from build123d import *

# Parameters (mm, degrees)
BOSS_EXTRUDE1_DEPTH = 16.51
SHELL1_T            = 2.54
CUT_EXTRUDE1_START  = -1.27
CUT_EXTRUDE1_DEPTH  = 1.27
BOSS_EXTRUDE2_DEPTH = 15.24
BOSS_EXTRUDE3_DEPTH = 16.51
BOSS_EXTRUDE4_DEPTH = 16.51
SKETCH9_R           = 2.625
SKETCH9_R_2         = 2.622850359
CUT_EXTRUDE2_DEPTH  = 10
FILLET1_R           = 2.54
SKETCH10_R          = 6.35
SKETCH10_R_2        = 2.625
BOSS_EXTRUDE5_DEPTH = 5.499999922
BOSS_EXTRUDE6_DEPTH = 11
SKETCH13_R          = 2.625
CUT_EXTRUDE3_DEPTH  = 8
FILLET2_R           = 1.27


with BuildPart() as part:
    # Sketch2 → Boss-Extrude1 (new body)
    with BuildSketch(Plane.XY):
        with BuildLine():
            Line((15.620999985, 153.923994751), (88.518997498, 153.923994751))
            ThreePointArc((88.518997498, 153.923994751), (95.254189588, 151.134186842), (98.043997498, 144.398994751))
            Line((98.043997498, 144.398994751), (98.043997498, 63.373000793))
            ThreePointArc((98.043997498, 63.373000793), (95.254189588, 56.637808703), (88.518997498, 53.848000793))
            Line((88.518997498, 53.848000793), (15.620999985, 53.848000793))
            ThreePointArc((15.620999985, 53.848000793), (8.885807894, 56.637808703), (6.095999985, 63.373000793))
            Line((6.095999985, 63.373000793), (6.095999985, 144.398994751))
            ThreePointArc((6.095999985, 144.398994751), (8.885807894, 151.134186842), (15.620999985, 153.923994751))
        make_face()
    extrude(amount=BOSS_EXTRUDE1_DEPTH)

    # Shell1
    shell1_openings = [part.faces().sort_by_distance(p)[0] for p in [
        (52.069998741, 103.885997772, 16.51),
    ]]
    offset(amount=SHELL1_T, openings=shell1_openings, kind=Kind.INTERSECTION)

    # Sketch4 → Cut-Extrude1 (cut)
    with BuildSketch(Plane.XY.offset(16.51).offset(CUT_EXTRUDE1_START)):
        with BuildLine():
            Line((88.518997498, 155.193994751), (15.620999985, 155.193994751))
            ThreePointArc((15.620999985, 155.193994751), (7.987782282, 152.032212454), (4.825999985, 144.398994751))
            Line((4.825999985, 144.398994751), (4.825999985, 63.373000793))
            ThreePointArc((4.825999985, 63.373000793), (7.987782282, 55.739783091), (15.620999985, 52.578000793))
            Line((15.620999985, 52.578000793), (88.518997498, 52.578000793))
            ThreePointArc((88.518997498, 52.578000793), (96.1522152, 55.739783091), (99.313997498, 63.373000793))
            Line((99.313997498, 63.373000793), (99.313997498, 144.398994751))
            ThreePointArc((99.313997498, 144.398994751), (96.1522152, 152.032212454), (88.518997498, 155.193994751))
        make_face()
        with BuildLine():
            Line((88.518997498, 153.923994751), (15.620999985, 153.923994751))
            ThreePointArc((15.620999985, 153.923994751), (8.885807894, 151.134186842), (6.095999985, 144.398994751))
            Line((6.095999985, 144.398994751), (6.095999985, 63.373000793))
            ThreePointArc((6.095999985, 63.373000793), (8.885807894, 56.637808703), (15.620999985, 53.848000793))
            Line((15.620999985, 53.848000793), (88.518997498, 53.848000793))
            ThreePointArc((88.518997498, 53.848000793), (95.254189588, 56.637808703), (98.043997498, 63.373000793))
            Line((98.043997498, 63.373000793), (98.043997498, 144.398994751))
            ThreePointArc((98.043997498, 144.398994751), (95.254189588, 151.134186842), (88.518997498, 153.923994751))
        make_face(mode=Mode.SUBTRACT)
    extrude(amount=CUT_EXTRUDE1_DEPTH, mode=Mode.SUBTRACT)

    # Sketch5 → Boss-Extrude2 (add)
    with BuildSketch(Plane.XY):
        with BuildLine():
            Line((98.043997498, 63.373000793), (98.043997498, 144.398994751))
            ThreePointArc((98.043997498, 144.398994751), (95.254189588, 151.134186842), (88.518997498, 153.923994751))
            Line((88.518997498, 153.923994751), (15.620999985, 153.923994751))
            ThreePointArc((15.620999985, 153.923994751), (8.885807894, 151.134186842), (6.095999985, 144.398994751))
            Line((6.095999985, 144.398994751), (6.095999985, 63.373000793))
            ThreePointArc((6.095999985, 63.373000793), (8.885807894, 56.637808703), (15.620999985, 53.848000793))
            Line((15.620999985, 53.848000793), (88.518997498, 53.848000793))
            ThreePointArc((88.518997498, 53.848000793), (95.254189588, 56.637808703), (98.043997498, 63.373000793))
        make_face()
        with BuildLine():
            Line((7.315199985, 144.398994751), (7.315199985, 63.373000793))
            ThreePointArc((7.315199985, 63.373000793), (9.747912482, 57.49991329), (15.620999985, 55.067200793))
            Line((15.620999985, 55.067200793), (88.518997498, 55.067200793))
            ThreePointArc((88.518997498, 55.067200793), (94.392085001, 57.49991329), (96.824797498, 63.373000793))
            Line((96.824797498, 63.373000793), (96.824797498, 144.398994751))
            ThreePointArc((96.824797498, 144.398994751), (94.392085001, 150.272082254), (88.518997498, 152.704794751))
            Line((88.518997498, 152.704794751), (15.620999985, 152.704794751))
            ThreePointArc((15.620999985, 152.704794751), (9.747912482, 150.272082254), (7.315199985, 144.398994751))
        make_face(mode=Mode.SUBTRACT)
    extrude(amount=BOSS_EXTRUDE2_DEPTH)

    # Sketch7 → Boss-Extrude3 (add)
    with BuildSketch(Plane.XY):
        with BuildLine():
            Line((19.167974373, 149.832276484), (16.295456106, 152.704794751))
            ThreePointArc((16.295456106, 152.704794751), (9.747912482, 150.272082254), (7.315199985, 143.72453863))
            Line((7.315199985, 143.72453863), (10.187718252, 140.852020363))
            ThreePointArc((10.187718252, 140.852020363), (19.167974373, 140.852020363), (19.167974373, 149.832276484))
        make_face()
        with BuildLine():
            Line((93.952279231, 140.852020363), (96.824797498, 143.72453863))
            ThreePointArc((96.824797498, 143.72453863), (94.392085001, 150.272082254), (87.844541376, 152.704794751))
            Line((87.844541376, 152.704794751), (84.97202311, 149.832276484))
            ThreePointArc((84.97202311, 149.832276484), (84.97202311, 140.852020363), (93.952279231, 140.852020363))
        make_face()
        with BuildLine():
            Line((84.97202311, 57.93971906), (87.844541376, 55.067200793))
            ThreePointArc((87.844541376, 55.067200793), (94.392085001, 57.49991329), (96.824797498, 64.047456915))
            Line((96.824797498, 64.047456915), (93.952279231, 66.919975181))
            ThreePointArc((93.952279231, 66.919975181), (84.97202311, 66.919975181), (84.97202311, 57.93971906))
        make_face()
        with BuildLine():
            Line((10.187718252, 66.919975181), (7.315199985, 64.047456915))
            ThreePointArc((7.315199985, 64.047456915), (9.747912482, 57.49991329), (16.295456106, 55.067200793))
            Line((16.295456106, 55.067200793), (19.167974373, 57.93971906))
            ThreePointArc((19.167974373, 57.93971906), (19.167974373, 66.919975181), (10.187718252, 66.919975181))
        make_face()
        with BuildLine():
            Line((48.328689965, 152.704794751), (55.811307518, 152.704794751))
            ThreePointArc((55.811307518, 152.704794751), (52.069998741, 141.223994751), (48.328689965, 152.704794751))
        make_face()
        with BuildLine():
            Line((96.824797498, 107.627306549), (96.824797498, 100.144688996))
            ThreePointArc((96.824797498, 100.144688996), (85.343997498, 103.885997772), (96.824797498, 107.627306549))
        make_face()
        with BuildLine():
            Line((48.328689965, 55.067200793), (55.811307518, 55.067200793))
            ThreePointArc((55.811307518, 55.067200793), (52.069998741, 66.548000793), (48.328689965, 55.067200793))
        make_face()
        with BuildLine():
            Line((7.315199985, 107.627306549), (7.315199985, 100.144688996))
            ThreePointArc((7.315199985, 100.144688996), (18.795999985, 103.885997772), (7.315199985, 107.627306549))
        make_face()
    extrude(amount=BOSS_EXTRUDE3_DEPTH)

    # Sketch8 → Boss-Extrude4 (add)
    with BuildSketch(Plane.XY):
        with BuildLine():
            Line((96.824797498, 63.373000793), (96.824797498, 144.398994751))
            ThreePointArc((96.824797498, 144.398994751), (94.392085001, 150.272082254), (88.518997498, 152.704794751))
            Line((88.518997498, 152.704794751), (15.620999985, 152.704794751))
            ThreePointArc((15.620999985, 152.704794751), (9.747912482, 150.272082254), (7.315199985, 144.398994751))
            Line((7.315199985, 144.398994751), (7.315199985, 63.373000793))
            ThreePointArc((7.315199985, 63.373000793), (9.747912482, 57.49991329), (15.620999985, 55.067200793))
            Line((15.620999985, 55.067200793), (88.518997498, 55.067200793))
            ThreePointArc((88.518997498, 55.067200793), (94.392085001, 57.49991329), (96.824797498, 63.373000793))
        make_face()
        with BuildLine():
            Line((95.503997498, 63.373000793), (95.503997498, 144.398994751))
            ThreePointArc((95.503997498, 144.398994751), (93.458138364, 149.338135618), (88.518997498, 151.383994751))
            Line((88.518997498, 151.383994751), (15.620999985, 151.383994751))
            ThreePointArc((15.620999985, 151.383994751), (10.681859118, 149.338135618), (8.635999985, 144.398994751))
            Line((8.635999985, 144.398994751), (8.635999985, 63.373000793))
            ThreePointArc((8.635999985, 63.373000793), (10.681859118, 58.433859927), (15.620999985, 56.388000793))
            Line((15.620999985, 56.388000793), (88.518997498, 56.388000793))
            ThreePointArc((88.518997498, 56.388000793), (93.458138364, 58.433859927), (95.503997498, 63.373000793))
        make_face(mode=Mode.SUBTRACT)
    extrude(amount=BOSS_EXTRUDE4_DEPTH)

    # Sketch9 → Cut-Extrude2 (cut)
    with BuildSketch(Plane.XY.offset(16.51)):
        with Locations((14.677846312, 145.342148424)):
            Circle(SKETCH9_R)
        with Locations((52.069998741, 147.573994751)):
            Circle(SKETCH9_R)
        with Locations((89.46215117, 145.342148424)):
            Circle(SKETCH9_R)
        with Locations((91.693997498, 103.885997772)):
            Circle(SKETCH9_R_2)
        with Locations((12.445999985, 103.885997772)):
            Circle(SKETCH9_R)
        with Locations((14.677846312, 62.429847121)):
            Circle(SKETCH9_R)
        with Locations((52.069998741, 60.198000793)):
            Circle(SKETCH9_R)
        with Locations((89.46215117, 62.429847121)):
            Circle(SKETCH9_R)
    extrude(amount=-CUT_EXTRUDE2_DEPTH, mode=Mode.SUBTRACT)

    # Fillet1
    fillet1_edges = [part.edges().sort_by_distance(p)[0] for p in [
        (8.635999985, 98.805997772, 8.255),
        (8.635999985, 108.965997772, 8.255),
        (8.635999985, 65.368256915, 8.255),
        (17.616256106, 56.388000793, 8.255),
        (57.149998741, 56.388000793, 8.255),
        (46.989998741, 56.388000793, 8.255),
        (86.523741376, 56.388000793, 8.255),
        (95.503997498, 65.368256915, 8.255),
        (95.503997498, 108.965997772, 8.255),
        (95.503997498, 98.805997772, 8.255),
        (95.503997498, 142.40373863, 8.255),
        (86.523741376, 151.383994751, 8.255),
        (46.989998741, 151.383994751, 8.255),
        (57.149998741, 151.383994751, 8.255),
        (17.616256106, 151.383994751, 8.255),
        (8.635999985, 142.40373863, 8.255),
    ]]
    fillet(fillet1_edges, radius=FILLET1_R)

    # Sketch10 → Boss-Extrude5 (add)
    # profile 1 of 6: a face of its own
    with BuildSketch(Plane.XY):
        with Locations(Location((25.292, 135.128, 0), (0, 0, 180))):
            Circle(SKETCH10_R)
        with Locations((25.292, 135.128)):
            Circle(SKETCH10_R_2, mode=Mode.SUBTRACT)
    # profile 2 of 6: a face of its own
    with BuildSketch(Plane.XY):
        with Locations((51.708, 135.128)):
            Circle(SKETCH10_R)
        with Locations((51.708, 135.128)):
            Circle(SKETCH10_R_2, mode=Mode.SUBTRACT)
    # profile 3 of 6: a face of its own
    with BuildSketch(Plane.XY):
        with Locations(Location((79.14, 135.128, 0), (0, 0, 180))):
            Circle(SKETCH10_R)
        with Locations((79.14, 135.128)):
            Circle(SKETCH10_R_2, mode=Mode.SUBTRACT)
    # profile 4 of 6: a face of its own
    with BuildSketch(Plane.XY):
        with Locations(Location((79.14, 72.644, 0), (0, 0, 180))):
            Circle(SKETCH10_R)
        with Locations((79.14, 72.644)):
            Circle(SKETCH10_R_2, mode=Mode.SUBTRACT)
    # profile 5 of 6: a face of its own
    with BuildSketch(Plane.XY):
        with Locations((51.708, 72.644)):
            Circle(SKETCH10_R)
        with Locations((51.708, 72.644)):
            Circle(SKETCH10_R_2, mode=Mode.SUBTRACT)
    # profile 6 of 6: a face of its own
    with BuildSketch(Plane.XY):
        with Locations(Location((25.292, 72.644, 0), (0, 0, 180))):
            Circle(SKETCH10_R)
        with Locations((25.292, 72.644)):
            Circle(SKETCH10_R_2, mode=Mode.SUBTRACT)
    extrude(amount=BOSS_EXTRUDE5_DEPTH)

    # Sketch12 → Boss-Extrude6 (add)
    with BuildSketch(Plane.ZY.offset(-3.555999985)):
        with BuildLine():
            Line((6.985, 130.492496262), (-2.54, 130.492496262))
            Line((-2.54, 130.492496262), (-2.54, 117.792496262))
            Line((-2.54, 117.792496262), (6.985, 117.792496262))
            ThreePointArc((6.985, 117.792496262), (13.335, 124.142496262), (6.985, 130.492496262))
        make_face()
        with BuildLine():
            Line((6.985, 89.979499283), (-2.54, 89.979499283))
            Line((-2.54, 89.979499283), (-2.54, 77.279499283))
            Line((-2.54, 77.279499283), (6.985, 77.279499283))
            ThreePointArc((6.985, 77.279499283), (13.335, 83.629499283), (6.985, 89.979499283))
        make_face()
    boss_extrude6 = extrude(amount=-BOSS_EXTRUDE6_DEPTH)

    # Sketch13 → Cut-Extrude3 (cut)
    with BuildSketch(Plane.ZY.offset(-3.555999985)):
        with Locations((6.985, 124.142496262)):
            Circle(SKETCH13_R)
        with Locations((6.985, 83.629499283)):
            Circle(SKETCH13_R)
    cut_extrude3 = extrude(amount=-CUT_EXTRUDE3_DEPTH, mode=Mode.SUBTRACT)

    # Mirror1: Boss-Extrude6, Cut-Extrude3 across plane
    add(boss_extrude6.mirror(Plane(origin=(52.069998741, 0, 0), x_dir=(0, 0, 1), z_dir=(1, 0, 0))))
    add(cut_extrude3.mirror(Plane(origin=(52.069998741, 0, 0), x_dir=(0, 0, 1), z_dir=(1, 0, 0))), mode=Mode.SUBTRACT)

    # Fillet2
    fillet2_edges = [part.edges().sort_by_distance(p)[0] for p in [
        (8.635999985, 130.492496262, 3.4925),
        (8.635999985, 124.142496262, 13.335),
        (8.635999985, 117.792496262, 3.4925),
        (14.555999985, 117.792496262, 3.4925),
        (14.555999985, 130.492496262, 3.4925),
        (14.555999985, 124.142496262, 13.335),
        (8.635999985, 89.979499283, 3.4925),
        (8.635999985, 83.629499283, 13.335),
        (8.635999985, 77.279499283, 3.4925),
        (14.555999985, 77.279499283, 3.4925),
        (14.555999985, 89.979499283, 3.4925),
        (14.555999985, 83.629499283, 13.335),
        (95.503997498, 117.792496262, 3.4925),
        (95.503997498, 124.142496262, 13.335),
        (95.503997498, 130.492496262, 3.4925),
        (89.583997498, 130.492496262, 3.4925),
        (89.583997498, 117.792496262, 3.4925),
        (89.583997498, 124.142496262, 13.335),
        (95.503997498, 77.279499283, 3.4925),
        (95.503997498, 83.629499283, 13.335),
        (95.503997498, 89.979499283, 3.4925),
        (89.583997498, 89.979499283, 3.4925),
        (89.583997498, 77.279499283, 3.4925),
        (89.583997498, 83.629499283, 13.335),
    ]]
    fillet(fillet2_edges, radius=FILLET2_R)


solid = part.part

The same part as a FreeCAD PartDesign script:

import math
import FreeCAD as App
import Part
import Sketcher
Q = App.Units.Quantity


def edges_at(feature, points):
    """Names of the edges that pass closest to the given points."""
    edges = feature.Shape.Edges
    near = lambda p: min(range(len(edges)), key=lambda i: edges[i].distToShape(Part.Vertex(*p))[0])
    return sorted({f"Edge{near(p) + 1}" for p in points})


def faces_at(feature, points):
    """Names of the faces that lie closest to the given points."""
    faces = feature.Shape.Faces
    near = lambda p: min(range(len(faces)), key=lambda i: faces[i].distToShape(Part.Vertex(*p))[0])
    return sorted({f"Face{near(p) + 1}" for p in points})

doc = App.newDocument("Part")
body = doc.addObject("PartDesign::Body", "Body")

sketch1 = body.newObject("Sketcher::SketchObject", "Sketch")
sketch1.AttachmentSupport = (doc.getObject("XY_Plane"), [""])
sketch1.MapMode = "FlatFace"
sketch1.addGeometry([
    Part.LineSegment(App.Vector(89, 154, 0), App.Vector(16, 154, 0)),
    Part.ArcOfCircle(Part.Circle(App.Vector(16, 144, 0), App.Vector(0, 0, 1), 10), math.radians(90), math.radians(180)),
    Part.LineSegment(App.Vector(6, 144, 0), App.Vector(6, 63, 0)),
    Part.ArcOfCircle(Part.Circle(App.Vector(16, 63, 0), App.Vector(0, 0, 1), 10), math.radians(-180), math.radians(-90)),
    Part.LineSegment(App.Vector(16, 54, 0), App.Vector(89, 54, 0)),
    Part.ArcOfCircle(Part.Circle(App.Vector(89, 63, 0), App.Vector(0, 0, 1), 10), math.radians(-90), math.radians(0)),
    Part.LineSegment(App.Vector(98, 63, 0), App.Vector(98, 144, 0)),
    Part.ArcOfCircle(Part.Circle(App.Vector(89, 144, 0), App.Vector(0, 0, 1), 10), math.radians(0), math.radians(90)),
], False)
sketch1.addConstraint([
    Sketcher.Constraint("Tangent", 0, 2, 1, 1),
    Sketcher.Constraint("Tangent", 1, 2, 2, 1),
    Sketcher.Constraint("Tangent", 2, 2, 3, 1),
    Sketcher.Constraint("Tangent", 3, 2, 4, 1),
    Sketcher.Constraint("Tangent", 4, 2, 5, 1),
    Sketcher.Constraint("Tangent", 5, 2, 6, 1),
    Sketcher.Constraint("Tangent", 6, 2, 7, 1),
    Sketcher.Constraint("Tangent", 7, 2, 0, 1),
    Sketcher.Constraint("Horizontal", 0),
    Sketcher.Constraint("Vertical", 2),
    Sketcher.Constraint("Horizontal", 4),
    Sketcher.Constraint("Vertical", 6),
    Sketcher.Constraint("Equal", 1, 3),
    Sketcher.Constraint("Equal", 3, 5),
    Sketcher.Constraint("Equal", 5, 7),
    Sketcher.Constraint("Radius", 1, Q("0.375 in")),
    Sketcher.Constraint("DistanceX", 0, 2, 0, 1, Q("2.8699999 in")),
    Sketcher.Constraint("DistanceX", -1, 1, 1, 2, Q("0.24 in")),
    Sketcher.Constraint("DistanceY", -1, 1, 3, 2, Q("2.12 in")),
    Sketcher.Constraint("DistanceY", 2, 2, 2, 1, 81.025994),
])
pad1 = body.newObject("PartDesign::Pad", "Pad")
pad1.Profile = sketch1
pad1.Length = Q("0.65 in")
doc.recompute()

thickness = body.newObject("PartDesign::Thickness", "Thickness")
thickness.Base = (pad1, faces_at(pad1, [(52.07, 103.886, 16.51)]))
thickness.Value = Q("0.1 in")
thickness.Reversed = False
thickness.Join = "Intersection"

sketch2 = body.newObject("Sketcher::SketchObject", "Sketch001")
sketch2.AttachmentSupport = (doc.getObject("XY_Plane"), [""])
sketch2.MapMode = "FlatFace"
sketch2.AttachmentOffset = App.Placement(App.Vector(0, 0, 0.6 * 25.4), App.Rotation())
sketch2.addGeometry([
    Part.LineSegment(App.Vector(89, 155, 0), App.Vector(16, 155, 0)),
    Part.ArcOfCircle(Part.Circle(App.Vector(16, 144, 0), App.Vector(0, 0, 1), 11), math.radians(90), math.radians(180)),
    Part.LineSegment(App.Vector(5, 144, 0), App.Vector(5, 63, 0)),
    Part.ArcOfCircle(Part.Circle(App.Vector(16, 63, 0), App.Vector(0, 0, 1), 11), math.radians(-180), math.radians(-90)),
    Part.LineSegment(App.Vector(16, 53, 0), App.Vector(89, 53, 0)),
    Part.ArcOfCircle(Part.Circle(App.Vector(89, 63, 0), App.Vector(0, 0, 1), 11), math.radians(-90), math.radians(0)),
    Part.LineSegment(App.Vector(99, 63, 0), App.Vector(99, 144, 0)),
    Part.ArcOfCircle(Part.Circle(App.Vector(89, 144, 0), App.Vector(0, 0, 1), 11), math.radians(0), math.radians(90)),
    Part.LineSegment(App.Vector(16, 154, 0), App.Vector(89, 154, 0)),
    Part.ArcOfCircle(Part.Circle(App.Vector(89, 144, 0), App.Vector(0, 0, 1), 10), math.radians(0), math.radians(90)),
    Part.LineSegment(App.Vector(98, 144, 0), App.Vector(98, 63, 0)),
    Part.ArcOfCircle(Part.Circle(App.Vector(89, 63, 0), App.Vector(0, 0, 1), 10), math.radians(-90), math.radians(0)),
    Part.LineSegment(App.Vector(89, 54, 0), App.Vector(16, 54, 0)),
    Part.ArcOfCircle(Part.Circle(App.Vector(16, 63, 0), App.Vector(0, 0, 1), 10), math.radians(-180), math.radians(-90)),
    Part.LineSegment(App.Vector(6, 63, 0), App.Vector(6, 144, 0)),
    Part.ArcOfCircle(Part.Circle(App.Vector(16, 144, 0), App.Vector(0, 0, 1), 10), math.radians(90), math.radians(180)),
], False)
sketch2.addConstraint([
    Sketcher.Constraint("Tangent", 0, 2, 1, 1),
    Sketcher.Constraint("Tangent", 1, 2, 2, 1),
    Sketcher.Constraint("Tangent", 2, 2, 3, 1),
    Sketcher.Constraint("Tangent", 3, 2, 4, 1),
    Sketcher.Constraint("Tangent", 4, 2, 5, 1),
    Sketcher.Constraint("Tangent", 5, 2, 6, 1),
    Sketcher.Constraint("Tangent", 6, 2, 7, 1),
    Sketcher.Constraint("Tangent", 7, 2, 0, 1),
    Sketcher.Constraint("Tangent", 8, 2, 9, 2),
    Sketcher.Constraint("Tangent", 9, 1, 10, 1),
    Sketcher.Constraint("Tangent", 10, 2, 11, 2),
    Sketcher.Constraint("Tangent", 11, 1, 12, 1),
    Sketcher.Constraint("Tangent", 12, 2, 13, 2),
    Sketcher.Constraint("Tangent", 13, 1, 14, 1),
    Sketcher.Constraint("Tangent", 14, 2, 15, 2),
    Sketcher.Constraint("Tangent", 15, 1, 8, 1),
    Sketcher.Constraint("Horizontal", 0),
    Sketcher.Constraint("Vertical", 2),
    Sketcher.Constraint("Horizontal", 4),
    Sketcher.Constraint("Vertical", 6),
    Sketcher.Constraint("Horizontal", 8),
    Sketcher.Constraint("Vertical", 10),
    Sketcher.Constraint("Horizontal", 12),
    Sketcher.Constraint("Vertical", 14),
    Sketcher.Constraint("Coincident", 9, 3, 7, 3),
    Sketcher.Constraint("Coincident", 11, 3, 5, 3),
    Sketcher.Constraint("Coincident", 13, 3, 3, 3),
    Sketcher.Constraint("Equal", 1, 3),
    Sketcher.Constraint("Equal", 3, 5),
    Sketcher.Constraint("Equal", 5, 7),
    Sketcher.Constraint("Equal", 13, 15),
    Sketcher.Constraint("Radius", 1, Q("0.425 in")),
    Sketcher.Constraint("Radius", 9, Q("0.375 in")),
    Sketcher.Constraint("DistanceX", 0, 2, 0, 1, Q("2.8699999 in")),
    Sketcher.Constraint("DistanceX", -1, 1, 1, 2, Q("0.19 in")),
    Sketcher.Constraint("DistanceY", -1, 1, 3, 2, Q("2.07 in")),
    Sketcher.Constraint("DistanceY", 2, 2, 2, 1, 81.025994),
])
pocket1 = body.newObject("PartDesign::Pocket", "Pocket")
pocket1.Profile = sketch2
pocket1.Length = Q("0.05 in")
pocket1.Reversed = True

sketch3 = body.newObject("Sketcher::SketchObject", "Sketch002")
sketch3.AttachmentSupport = (doc.getObject("XY_Plane"), [""])
sketch3.MapMode = "FlatFace"
sketch3.addGeometry([
    Part.LineSegment(App.Vector(98, 63, 0), App.Vector(98, 144, 0)),
    Part.ArcOfCircle(Part.Circle(App.Vector(89, 144, 0), App.Vector(0, 0, 1), 10), math.radians(0), math.radians(90)),
    Part.LineSegment(App.Vector(89, 154, 0), App.Vector(16, 154, 0)),
    Part.ArcOfCircle(Part.Circle(App.Vector(16, 144, 0), App.Vector(0, 0, 1), 10), math.radians(90), math.radians(180)),
    Part.LineSegment(App.Vector(6, 144, 0), App.Vector(6, 63, 0)),
    Part.ArcOfCircle(Part.Circle(App.Vector(16, 63, 0), App.Vector(0, 0, 1), 10), math.radians(-180), math.radians(-90)),
    Part.LineSegment(App.Vector(16, 54, 0), App.Vector(89, 54, 0)),
    Part.ArcOfCircle(Part.Circle(App.Vector(89, 63, 0), App.Vector(0, 0, 1), 10), math.radians(-90), math.radians(0)),
    Part.LineSegment(App.Vector(7, 63, 0), App.Vector(7, 144, 0)),
    Part.ArcOfCircle(Part.Circle(App.Vector(16, 144, 0), App.Vector(0, 0, 1), 8), math.radians(90), math.radians(180)),
    Part.LineSegment(App.Vector(16, 153, 0), App.Vector(89, 153, 0)),
    Part.ArcOfCircle(Part.Circle(App.Vector(89, 144, 0), App.Vector(0, 0, 1), 8), math.radians(0), math.radians(90)),
    Part.LineSegment(App.Vector(97, 144, 0), App.Vector(97, 63, 0)),
    Part.ArcOfCircle(Part.Circle(App.Vector(89, 63, 0), App.Vector(0, 0, 1), 8), math.radians(-90), math.radians(0)),
    Part.LineSegment(App.Vector(89, 55, 0), App.Vector(16, 55, 0)),
    Part.ArcOfCircle(Part.Circle(App.Vector(16, 63, 0), App.Vector(0, 0, 1), 8), math.radians(-180), math.radians(-90)),
], False)
sketch3.addConstraint([
    Sketcher.Constraint("Tangent", 0, 2, 1, 1),
    Sketcher.Constraint("Tangent", 1, 2, 2, 1),
    Sketcher.Constraint("Tangent", 2, 2, 3, 1),
    Sketcher.Constraint("Tangent", 3, 2, 4, 1),
    Sketcher.Constraint("Tangent", 4, 2, 5, 1),
    Sketcher.Constraint("Tangent", 5, 2, 6, 1),
    Sketcher.Constraint("Tangent", 6, 2, 7, 1),
    Sketcher.Constraint("Tangent", 7, 2, 0, 1),
    Sketcher.Constraint("Tangent", 8, 2, 9, 2),
    Sketcher.Constraint("Tangent", 9, 1, 10, 1),
    Sketcher.Constraint("Tangent", 10, 2, 11, 2),
    Sketcher.Constraint("Tangent", 11, 1, 12, 1),
    Sketcher.Constraint("Tangent", 12, 2, 13, 2),
    Sketcher.Constraint("Tangent", 13, 1, 14, 1),
    Sketcher.Constraint("Tangent", 14, 2, 15, 2),
    Sketcher.Constraint("Tangent", 15, 1, 8, 1),
    Sketcher.Constraint("Vertical", 0),
    Sketcher.Constraint("Horizontal", 2),
    Sketcher.Constraint("Vertical", 4),
    Sketcher.Constraint("Horizontal", 6),
    Sketcher.Constraint("Vertical", 8),
    Sketcher.Constraint("Horizontal", 10),
    Sketcher.Constraint("Vertical", 12),
    Sketcher.Constraint("Horizontal", 14),
    Sketcher.Constraint("Coincident", 9, 3, 3, 3),
    Sketcher.Constraint("Coincident", 11, 3, 1, 3),
    Sketcher.Constraint("Coincident", 13, 3, 7, 3),
    Sketcher.Constraint("Equal", 1, 3),
    Sketcher.Constraint("Equal", 3, 5),
    Sketcher.Constraint("Equal", 5, 7),
    Sketcher.Constraint("Equal", 13, 15),
    Sketcher.Constraint("Radius", 1, Q("0.375 in")),
    Sketcher.Constraint("Radius", 9, Q("0.327 in")),
    Sketcher.Constraint("DistanceX", 2, 2, 2, 1, Q("2.8699999 in")),
    Sketcher.Constraint("DistanceX", -1, 1, 0, 2, Q("3.8599999 in")),
    Sketcher.Constraint("DistanceY", -1, 1, 5, 2, Q("2.12 in")),
    Sketcher.Constraint("DistanceY", 0, 1, 0, 2, 81.025994),
])
pad2 = body.newObject("PartDesign::Pad", "Pad001")
pad2.Profile = sketch3
pad2.Length = Q("0.6 in")

sketch4 = body.newObject("Sketcher::SketchObject", "Sketch003")
sketch4.AttachmentSupport = (doc.getObject("XY_Plane"), [""])
sketch4.MapMode = "FlatFace"
sketch4.addGeometry([
    Part.LineSegment(App.Vector(19.2, 149.8, 0), App.Vector(16.3, 152.7, 0)),
    Part.ArcOfCircle(Part.Circle(App.Vector(15.7, 144.3, 0), App.Vector(0, 0, 1), 8.4), math.radians(86), math.radians(184)),
    Part.LineSegment(App.Vector(7.3, 143.7, 0), App.Vector(10.2, 140.9, 0)),
    Part.ArcOfCircle(Part.Circle(App.Vector(14.7, 145.3, 0), App.Vector(0, 0, 1), 6.3), math.radians(-135), math.radians(45)),
    Part.LineSegment(App.Vector(94, 140.9, 0), App.Vector(96.8, 143.7, 0)),
    Part.ArcOfCircle(Part.Circle(App.Vector(88.5, 144.3, 0), App.Vector(0, 0, 1), 8.4), math.radians(-4), math.radians(94)),
    Part.LineSegment(App.Vector(87.8, 152.7, 0), App.Vector(85, 149.8, 0)),
    Part.ArcOfCircle(Part.Circle(App.Vector(89.5, 145.3, 0), App.Vector(0, 0, 1), 6.3), math.radians(135), math.radians(315)),
    Part.LineSegment(App.Vector(85, 57.9, 0), App.Vector(87.8, 55.1, 0)),
    Part.ArcOfCircle(Part.Circle(App.Vector(88.5, 63.4, 0), App.Vector(0, 0, 1), 8.4), math.radians(-94), math.radians(4)),
    Part.LineSegment(App.Vector(96.8, 64, 0), App.Vector(94, 66.9, 0)),
    Part.ArcOfCircle(Part.Circle(App.Vector(89.5, 62.4, 0), App.Vector(0, 0, 1), 6.3), math.radians(45), math.radians(225)),
    Part.LineSegment(App.Vector(10.2, 66.9, 0), App.Vector(7.3, 64, 0)),
    Part.ArcOfCircle(Part.Circle(App.Vector(15.7, 63.4, 0), App.Vector(0, 0, 1), 8.4), math.radians(176), math.radians(274)),
    Part.LineSegment(App.Vector(16.3, 55.1, 0), App.Vector(19.2, 57.9, 0)),
    Part.ArcOfCircle(Part.Circle(App.Vector(14.7, 62.4, 0), App.Vector(0, 0, 1), 6.3), math.radians(-45), math.radians(135)),
    Part.LineSegment(App.Vector(55.8, 152.7, 0), App.Vector(48.3, 152.7, 0)),
    Part.ArcOfCircle(Part.Circle(App.Vector(52.1, 147.6, 0), App.Vector(0, 0, 1), 6.3), math.radians(126), math.radians(414)),
    Part.LineSegment(App.Vector(96.8, 100.1, 0), App.Vector(96.8, 107.6, 0)),
    Part.ArcOfCircle(Part.Circle(App.Vector(91.7, 103.9, 0), App.Vector(0, 0, 1), 6.3), math.radians(36), math.radians(324)),
    Part.LineSegment(App.Vector(48.3, 55.1, 0), App.Vector(55.8, 55.1, 0)),
    Part.ArcOfCircle(Part.Circle(App.Vector(52.1, 60.2, 0), App.Vector(0, 0, 1), 6.3), math.radians(-54), math.radians(234)),
    Part.LineSegment(App.Vector(7.3, 107.6, 0), App.Vector(7.3, 100.1, 0)),
    Part.ArcOfCircle(Part.Circle(App.Vector(12.4, 103.9, 0), App.Vector(0, 0, 1), 6.3), math.radians(-144), math.radians(144)),
], False)
sketch4.addConstraint([
    Sketcher.Constraint("Coincident", 0, 2, 1, 1),
    Sketcher.Constraint("Coincident", 1, 2, 2, 1),
    Sketcher.Constraint("Tangent", 2, 2, 3, 1),
    Sketcher.Constraint("Tangent", 3, 2, 0, 1),
    Sketcher.Constraint("Coincident", 4, 2, 5, 1),
    Sketcher.Constraint("Coincident", 5, 2, 6, 1),
    Sketcher.Constraint("Tangent", 6, 2, 7, 1),
    Sketcher.Constraint("Tangent", 7, 2, 4, 1),
    Sketcher.Constraint("Coincident", 8, 2, 9, 1),
    Sketcher.Constraint("Coincident", 9, 2, 10, 1),
    Sketcher.Constraint("Tangent", 10, 2, 11, 1),
    Sketcher.Constraint("Tangent", 11, 2, 8, 1),
    Sketcher.Constraint("Coincident", 12, 2, 13, 1),
    Sketcher.Constraint("Coincident", 13, 2, 14, 1),
    Sketcher.Constraint("Tangent", 14, 2, 15, 1),
    Sketcher.Constraint("Tangent", 15, 2, 12, 1),
    Sketcher.Constraint("Coincident", 16, 1, 17, 2),
    Sketcher.Constraint("Coincident", 17, 1, 16, 2),
    Sketcher.Constraint("Coincident", 18, 1, 19, 2),
    Sketcher.Constraint("Coincident", 19, 1, 18, 2),
    Sketcher.Constraint("Coincident", 20, 1, 21, 2),
    Sketcher.Constraint("Coincident", 21, 1, 20, 2),
    Sketcher.Constraint("Coincident", 22, 1, 23, 2),
    Sketcher.Constraint("Coincident", 23, 1, 22, 2),
    Sketcher.Constraint("Horizontal", 16),
    Sketcher.Constraint("Vertical", 18),
    Sketcher.Constraint("Horizontal", 20),
    Sketcher.Constraint("Vertical", 22),
    Sketcher.Constraint("Equal", 1, 5),
    Sketcher.Constraint("Equal", 3, 7),
    Sketcher.Constraint("Equal", 5, 9),
    Sketcher.Constraint("Equal", 7, 11),
    Sketcher.Constraint("Equal", 9, 13),
    Sketcher.Constraint("Equal", 11, 15),
    Sketcher.Constraint("Equal", 15, 17),
    Sketcher.Constraint("Equal", 17, 19),
    Sketcher.Constraint("Equal", 19, 21),
    Sketcher.Constraint("Equal", 21, 23),
    Sketcher.Constraint("Parallel", 0, 2),
    Sketcher.Constraint("Perpendicular", 2, 4),
    Sketcher.Constraint("Parallel", 4, 6),
    Sketcher.Constraint("Perpendicular", 6, 8),
    Sketcher.Constraint("Parallel", 8, 10),
    Sketcher.Constraint("Perpendicular", 10, 12),
    Sketcher.Constraint("Parallel", 12, 14),
    Sketcher.Constraint("Horizontal", 1, 3, 5, 3),
    Sketcher.Constraint("Horizontal", 3, 3, 7, 3),
    Sketcher.Constraint("Horizontal", 9, 3, 13, 3),
    Sketcher.Constraint("Horizontal", 11, 3, 15, 3),
    Sketcher.Constraint("Horizontal", 19, 3, 23, 3),
    Sketcher.Constraint("Horizontal", 1, 2, 4, 2),
    Sketcher.Constraint("Horizontal", 3, 2, 6, 2),
    Sketcher.Constraint("Horizontal", 9, 2, 12, 2),
    Sketcher.Constraint("Horizontal", 5, 2, 16, 1),
    Sketcher.Constraint("Horizontal", 13, 2, 20, 1),
    Sketcher.Constraint("Horizontal", 19, 1, 22, 1),
    Sketcher.Constraint("Vertical", 5, 3, 9, 3),
    Sketcher.Constraint("Vertical", 7, 3, 11, 3),
    Sketcher.Constraint("Vertical", 1, 3, 13, 3),
    Sketcher.Constraint("Vertical", 17, 3, 21, 3),
    Sketcher.Constraint("Vertical", 5, 2, 8, 2),
    Sketcher.Constraint("Vertical", 9, 2, 18, 1),
    Sketcher.Constraint("Vertical", 17, 1, 20, 1),
    Sketcher.Constraint("Vertical", 12, 2, 22, 1),
    Sketcher.Constraint("Equal", 20, 18),
    Sketcher.Constraint("Equal", 0, 2),
    Sketcher.Constraint("Radius", 3, Q("0.25 in")),
    Sketcher.Constraint("DistanceX", -1, 1, 17, 3, Q("2.05 in")),
    Sketcher.Constraint("DistanceX", -1, 1, 19, 3, Q("3.6099999 in")),
    Sketcher.Constraint("DistanceY", -1, 1, 19, 3, Q("4.0899999 in")),
    Sketcher.Constraint("DistanceY", -1, 1, 21, 3, Q("2.37 in")),
    Sketcher.Constraint("DistanceX", -1, 1, 23, 3, Q("0.49 in")),
    Sketcher.Constraint("DistanceY", 19, 3, 17, 3, Q("1.7199999 in")),
    Sketcher.Constraint("DistanceX", -1, 1, 1, 2, Q("0.288 in")),
    Sketcher.Constraint("Radius", 1, 8.38397),
    Sketcher.Constraint("DistanceY", 11, 3, 7, 3, 82.912301),
])
pad3 = body.newObject("PartDesign::Pad", "Pad002")
pad3.Profile = sketch4
pad3.Length = Q("0.65 in")

sketch5 = body.newObject("Sketcher::SketchObject", "Sketch004")
sketch5.AttachmentSupport = (doc.getObject("XY_Plane"), [""])
sketch5.MapMode = "FlatFace"
sketch5.addGeometry([
    Part.LineSegment(App.Vector(97, 63, 0), App.Vector(97, 144, 0)),
    Part.ArcOfCircle(Part.Circle(App.Vector(89, 144, 0), App.Vector(0, 0, 1), 8), math.radians(0), math.radians(90)),
    Part.LineSegment(App.Vector(89, 153, 0), App.Vector(16, 153, 0)),
    Part.ArcOfCircle(Part.Circle(App.Vector(16, 144, 0), App.Vector(0, 0, 1), 8), math.radians(90), math.radians(180)),
    Part.LineSegment(App.Vector(7, 144, 0), App.Vector(7, 63, 0)),
    Part.ArcOfCircle(Part.Circle(App.Vector(16, 63, 0), App.Vector(0, 0, 1), 8), math.radians(-180), math.radians(-90)),
    Part.LineSegment(App.Vector(16, 55, 0), App.Vector(89, 55, 0)),
    Part.ArcOfCircle(Part.Circle(App.Vector(89, 63, 0), App.Vector(0, 0, 1), 8), math.radians(-90), math.radians(0)),
    Part.LineSegment(App.Vector(96, 144, 0), App.Vector(96, 63, 0)),
    Part.ArcOfCircle(Part.Circle(App.Vector(89, 63, 0), App.Vector(0, 0, 1), 7), math.radians(-90), math.radians(0)),
    Part.LineSegment(App.Vector(89, 56, 0), App.Vector(16, 56, 0)),
    Part.ArcOfCircle(Part.Circle(App.Vector(16, 63, 0), App.Vector(0, 0, 1), 7), math.radians(180), math.radians(270)),
    Part.LineSegment(App.Vector(9, 63, 0), App.Vector(9, 144, 0)),
    Part.ArcOfCircle(Part.Circle(App.Vector(16, 144, 0), App.Vector(0, 0, 1), 7), math.radians(90), math.radians(180)),
    Part.LineSegment(App.Vector(16, 151, 0), App.Vector(89, 151, 0)),
    Part.ArcOfCircle(Part.Circle(App.Vector(89, 144, 0), App.Vector(0, 0, 1), 7), math.radians(0), math.radians(90)),
], False)
sketch5.addConstraint([
    Sketcher.Constraint("Tangent", 0, 2, 1, 1),
    Sketcher.Constraint("Tangent", 1, 2, 2, 1),
    Sketcher.Constraint("Tangent", 2, 2, 3, 1),
    Sketcher.Constraint("Tangent", 3, 2, 4, 1),
    Sketcher.Constraint("Tangent", 4, 2, 5, 1),
    Sketcher.Constraint("Tangent", 5, 2, 6, 1),
    Sketcher.Constraint("Tangent", 6, 2, 7, 1),
    Sketcher.Constraint("Tangent", 7, 2, 0, 1),
    Sketcher.Constraint("Tangent", 8, 2, 9, 2),
    Sketcher.Constraint("Tangent", 9, 1, 10, 1),
    Sketcher.Constraint("Tangent", 10, 2, 11, 2),
    Sketcher.Constraint("Tangent", 11, 1, 12, 1),
    Sketcher.Constraint("Tangent", 12, 2, 13, 2),
    Sketcher.Constraint("Tangent", 13, 1, 14, 1),
    Sketcher.Constraint("Tangent", 14, 2, 15, 2),
    Sketcher.Constraint("Tangent", 15, 1, 8, 1),
    Sketcher.Constraint("Vertical", 0),
    Sketcher.Constraint("Horizontal", 2),
    Sketcher.Constraint("Vertical", 4),
    Sketcher.Constraint("Horizontal", 6),
    Sketcher.Constraint("Vertical", 8),
    Sketcher.Constraint("Horizontal", 10),
    Sketcher.Constraint("Vertical", 12),
    Sketcher.Constraint("Horizontal", 14),
    Sketcher.Constraint("Coincident", 9, 3, 7, 3),
    Sketcher.Constraint("Coincident", 11, 3, 5, 3),
    Sketcher.Constraint("Coincident", 13, 3, 3, 3),
    Sketcher.Constraint("Equal", 1, 3),
    Sketcher.Constraint("Equal", 3, 5),
    Sketcher.Constraint("Equal", 5, 7),
    Sketcher.Constraint("Equal", 13, 15),
    Sketcher.Constraint("Radius", 1, Q("0.327 in")),
    Sketcher.Constraint("Radius", 9, Q("0.275 in")),
    Sketcher.Constraint("DistanceX", 2, 2, 2, 1, Q("2.8699999 in")),
    Sketcher.Constraint("DistanceX", -1, 1, 8, 2, Q("3.7599999 in")),
    Sketcher.Constraint("DistanceY", -1, 1, 9, 1, Q("2.22 in")),
    Sketcher.Constraint("DistanceY", 0, 1, 0, 2, 81.025994),
])
pad4 = body.newObject("PartDesign::Pad", "Pad003")
pad4.Profile = sketch5
pad4.Length = Q("0.65 in")

sketch6 = body.newObject("Sketcher::SketchObject", "Sketch005")
sketch6.AttachmentSupport = (doc.getObject("XY_Plane"), [""])
sketch6.MapMode = "FlatFace"
sketch6.AttachmentOffset = App.Placement(App.Vector(0, 0, 0.65 * 25.4), App.Rotation())
sketch6.addGeometry([
    Part.Circle(App.Vector(14.7, 145.3, 0), App.Vector(0, 0, 1), 2.6),
    Part.Circle(App.Vector(52.1, 147.6, 0), App.Vector(0, 0, 1), 2.6),
    Part.Circle(App.Vector(89.5, 145.3, 0), App.Vector(0, 0, 1), 2.6),
    Part.Circle(App.Vector(91.7, 103.9, 0), App.Vector(0, 0, 1), 2.6),
    Part.Circle(App.Vector(12.4, 103.9, 0), App.Vector(0, 0, 1), 2.6),
    Part.Circle(App.Vector(14.7, 62.4, 0), App.Vector(0, 0, 1), 2.6),
    Part.Circle(App.Vector(52.1, 60.2, 0), App.Vector(0, 0, 1), 2.6),
    Part.Circle(App.Vector(89.5, 62.4, 0), App.Vector(0, 0, 1), 2.6),
], False)
sketch6.addConstraint([
    Sketcher.Constraint("Equal", 0, 1),
    Sketcher.Constraint("Equal", 1, 2),
    Sketcher.Constraint("Equal", 2, 4),
    Sketcher.Constraint("Equal", 4, 5),
    Sketcher.Constraint("Equal", 5, 6),
    Sketcher.Constraint("Equal", 6, 7),
    Sketcher.Constraint("Horizontal", 0, 3, 2, 3),
    Sketcher.Constraint("Horizontal", 3, 3, 4, 3),
    Sketcher.Constraint("Horizontal", 5, 3, 7, 3),
    Sketcher.Constraint("Vertical", 0, 3, 5, 3),
    Sketcher.Constraint("Vertical", 1, 3, 6, 3),
    Sketcher.Constraint("Vertical", 2, 3, 7, 3),
    Sketcher.Constraint("Diameter", 0, 5.25),
    Sketcher.Constraint("Diameter", 3, 5.245701),
    Sketcher.Constraint("DistanceX", -1, 1, 1, 3, Q("2.05 in")),
    Sketcher.Constraint("DistanceX", -1, 1, 3, 3, Q("3.6099999 in")),
    Sketcher.Constraint("DistanceY", -1, 1, 3, 3, Q("4.0899999 in")),
    Sketcher.Constraint("DistanceX", -1, 1, 4, 3, Q("0.49 in")),
    Sketcher.Constraint("DistanceY", -1, 1, 6, 3, Q("2.37 in")),
    Sketcher.Constraint("DistanceY", 3, 3, 1, 3, Q("1.7199999 in")),
    Sketcher.Constraint("DistanceY", 5, 3, 0, 3, 82.912301),
    Sketcher.Constraint("DistanceY", -1, 1, 0, 3, 145.342148),
    Sketcher.Constraint("DistanceX", -1, 1, 2, 3, 89.462151),
    Sketcher.Constraint("DistanceX", 0, 3, 3, 3, 77.016151),
])
pocket2 = body.newObject("PartDesign::Pocket", "Pocket001")
pocket2.Profile = sketch6
pocket2.Length = 10
doc.recompute()

fillet = body.newObject("PartDesign::Fillet", "Fillet")
fillet.Base = (pocket2, edges_at(pocket2, [
    (8.636, 98.806, 8.255),
    (8.636, 108.966, 8.255),
    (8.636, 65.368, 8.255),
    (17.616, 56.388, 8.255),
    (57.15, 56.388, 8.255),
    (46.99, 56.388, 8.255),
    (86.524, 56.388, 8.255),
    (95.504, 65.368, 8.255),
    (95.504, 108.966, 8.255),
    (95.504, 98.806, 8.255),
    (95.504, 142.404, 8.255),
    (86.524, 151.384, 8.255),
    (46.99, 151.384, 8.255),
    (57.15, 151.384, 8.255),
    (17.616, 151.384, 8.255),
    (8.636, 142.404, 8.255),
]))
fillet.Radius = Q("0.1 in")

sketch7 = body.newObject("Sketcher::SketchObject", "Sketch006")
sketch7.AttachmentSupport = (doc.getObject("XY_Plane"), [""])
sketch7.MapMode = "FlatFace"
sketch7.addGeometry([
    Part.Circle(App.Vector(25.3, 135.1, 0), App.Vector(0, 0, 1), 6.3),
    Part.Circle(App.Vector(25.3, 135.1, 0), App.Vector(0, 0, 1), 2.6),
    Part.Circle(App.Vector(51.7, 135.1, 0), App.Vector(0, 0, 1), 6.3),
    Part.Circle(App.Vector(51.7, 135.1, 0), App.Vector(0, 0, 1), 2.6),
    Part.Circle(App.Vector(79.1, 135.1, 0), App.Vector(0, 0, 1), 6.3),
    Part.Circle(App.Vector(79.1, 135.1, 0), App.Vector(0, 0, 1), 2.6),
    Part.Circle(App.Vector(79.1, 72.6, 0), App.Vector(0, 0, 1), 6.3),
    Part.Circle(App.Vector(79.1, 72.6, 0), App.Vector(0, 0, 1), 2.6),
    Part.Circle(App.Vector(51.7, 72.6, 0), App.Vector(0, 0, 1), 6.3),
    Part.Circle(App.Vector(51.7, 72.6, 0), App.Vector(0, 0, 1), 2.6),
    Part.Circle(App.Vector(25.3, 72.6, 0), App.Vector(0, 0, 1), 6.3),
    Part.Circle(App.Vector(25.3, 72.6, 0), App.Vector(0, 0, 1), 2.6),
], False)
sketch7.addConstraint([
    Sketcher.Constraint("Coincident", 1, 3, 0, 3),
    Sketcher.Constraint("Coincident", 3, 3, 2, 3),
    Sketcher.Constraint("Coincident", 5, 3, 4, 3),
    Sketcher.Constraint("Coincident", 7, 3, 6, 3),
    Sketcher.Constraint("Coincident", 9, 3, 8, 3),
    Sketcher.Constraint("Coincident", 11, 3, 10, 3),
    Sketcher.Constraint("Equal", 0, 2),
    Sketcher.Constraint("Equal", 1, 3),
    Sketcher.Constraint("Equal", 2, 4),
    Sketcher.Constraint("Equal", 3, 5),
    Sketcher.Constraint("Equal", 4, 6),
    Sketcher.Constraint("Equal", 5, 7),
    Sketcher.Constraint("Equal", 6, 8),
    Sketcher.Constraint("Equal", 7, 9),
    Sketcher.Constraint("Equal", 8, 10),
    Sketcher.Constraint("Equal", 9, 11),
    Sketcher.Constraint("Horizontal", 1, 3, 2, 3),
    Sketcher.Constraint("Horizontal", 3, 3, 4, 3),
    Sketcher.Constraint("Horizontal", 7, 3, 8, 3),
    Sketcher.Constraint("Horizontal", 9, 3, 10, 3),
    Sketcher.Constraint("Vertical", 5, 3, 6, 3),
    Sketcher.Constraint("Vertical", 3, 3, 8, 3),
    Sketcher.Constraint("Vertical", 1, 3, 10, 3),
    Sketcher.Constraint("Diameter", 0, Q("0.5 in")),
    Sketcher.Constraint("Diameter", 1, 5.25),
    Sketcher.Constraint("DistanceY", -1, 1, 0, 3, Q("5.32 in")),
    Sketcher.Constraint("DistanceY", -1, 1, 6, 3, Q("2.86 in")),
    Sketcher.Constraint("DistanceX", 0, 3, 2, 3, Q("1.04 in")),
    Sketcher.Constraint("DistanceX", 2, 3, 4, 3, Q("1.08 in")),
    Sketcher.Constraint("DistanceX", -1, 1, 0, 3, 25.292),
])
pad5 = body.newObject("PartDesign::Pad", "Pad004")
pad5.Profile = sketch7
pad5.Length = 5.5

sketch8 = body.newObject("Sketcher::SketchObject", "Sketch007")
sketch8.AttachmentSupport = (doc.getObject("YZ_Plane"), [""])
sketch8.MapMode = "FlatFace"
sketch8.AttachmentOffset = App.Placement(App.Vector(0, 0, 0.14 * 25.4), App.Rotation())
sketch8.addGeometry([
    Part.LineSegment(App.Vector(130, 7, 0), App.Vector(130, -3, 0)),
    Part.LineSegment(App.Vector(130, -3, 0), App.Vector(118, -3, 0)),
    Part.LineSegment(App.Vector(118, -3, 0), App.Vector(118, 7, 0)),
    Part.ArcOfCircle(Part.Circle(App.Vector(124, 7, 0), App.Vector(0, 0, 1), 6), math.radians(0), math.radians(180)),
    Part.LineSegment(App.Vector(90, 7, 0), App.Vector(90, -3, 0)),
    Part.LineSegment(App.Vector(90, -3, 0), App.Vector(77, -3, 0)),
    Part.LineSegment(App.Vector(77, -3, 0), App.Vector(77, 7, 0)),
    Part.ArcOfCircle(Part.Circle(App.Vector(84, 7, 0), App.Vector(0, 0, 1), 6), math.radians(0), math.radians(180)),
], False)
sketch8.addConstraint([
    Sketcher.Constraint("Coincident", 0, 2, 1, 1),
    Sketcher.Constraint("Coincident", 1, 2, 2, 1),
    Sketcher.Constraint("Tangent", 2, 2, 3, 2),
    Sketcher.Constraint("Tangent", 3, 1, 0, 1),
    Sketcher.Constraint("Coincident", 4, 2, 5, 1),
    Sketcher.Constraint("Coincident", 5, 2, 6, 1),
    Sketcher.Constraint("Tangent", 6, 2, 7, 2),
    Sketcher.Constraint("Tangent", 7, 1, 4, 1),
    Sketcher.Constraint("Vertical", 0),
    Sketcher.Constraint("Horizontal", 1),
    Sketcher.Constraint("Vertical", 2),
    Sketcher.Constraint("Vertical", 4),
    Sketcher.Constraint("Horizontal", 5),
    Sketcher.Constraint("Vertical", 6),
    Sketcher.Constraint("Equal", 3, 7),
    Sketcher.Constraint("Horizontal", 3, 3, 7, 3),
    Sketcher.Constraint("Horizontal", 1, 2, 4, 2),
    Sketcher.Constraint("Radius", 3, Q("0.25 in")),
    Sketcher.Constraint("DistanceY", 0, 2, -1, 1, Q("0.1 in")),
    Sketcher.Constraint("DistanceY", 0, 2, 0, 1, Q("0.375 in")),
    Sketcher.Constraint("DistanceX", 7, 3, 3, 3, Q("1.5949999 in")),
    Sketcher.Constraint("DistanceX", -1, 1, 3, 3, Q("4.8874999 in")),
])
pad6 = body.newObject("PartDesign::Pad", "Pad005")
pad6.Profile = sketch8
pad6.Length = 11

sketch9 = body.newObject("Sketcher::SketchObject", "Sketch008")
sketch9.AttachmentSupport = (doc.getObject("YZ_Plane"), [""])
sketch9.MapMode = "FlatFace"
sketch9.AttachmentOffset = App.Placement(App.Vector(0, 0, 0.14 * 25.4), App.Rotation())
sketch9.addGeometry([
    Part.Circle(App.Vector(124.1, 7, 0), App.Vector(0, 0, 1), 2.6),
    Part.Circle(App.Vector(83.6, 7, 0), App.Vector(0, 0, 1), 2.6),
], False)
sketch9.addConstraint([
    Sketcher.Constraint("Equal", 0, 1),
    Sketcher.Constraint("Horizontal", 0, 3, 1, 3),
    Sketcher.Constraint("Diameter", 0, 5.25),
    Sketcher.Constraint("DistanceY", -1, 1, 0, 3, Q("0.275 in")),
    Sketcher.Constraint("DistanceX", 1, 3, 0, 3, Q("1.5949999 in")),
    Sketcher.Constraint("DistanceX", -1, 1, 0, 3, Q("4.8874999 in")),
])
pocket3 = body.newObject("PartDesign::Pocket", "Pocket002")
pocket3.Profile = sketch9
pocket3.Length = 8
pocket3.Reversed = True
doc.recompute()

datumplane = body.newObject("PartDesign::Plane", "DatumPlane")
datumplane.AttachmentSupport = (doc.getObject("YZ_Plane"), [""])
datumplane.MapMode = "FlatFace"
datumplane.AttachmentOffset = App.Placement(App.Vector(0, 0, 2.05 * 25.4), App.Rotation())
mirrored = body.newObject("PartDesign::Mirrored", "Mirrored")
mirrored.Originals = [pad6, pocket3]
mirrored.MirrorPlane = (datumplane, [""])
body.Tip = mirrored
doc.recompute()

fillet2 = body.newObject("PartDesign::Fillet", "Fillet001")
fillet2.Base = (mirrored, edges_at(mirrored, [
    (8.636, 130.492, 3.493),
    (8.636, 124.142, 13.335),
    (8.636, 117.792, 3.493),
    (14.556, 117.792, 3.493),
    (14.556, 130.492, 3.493),
    (14.556, 124.142, 13.335),
    (8.636, 89.979, 3.493),
    (8.636, 83.629, 13.335),
    (8.636, 77.279, 3.493),
    (14.556, 77.279, 3.493),
    (14.556, 89.979, 3.493),
    (14.556, 83.629, 13.335),
    (95.504, 117.792, 3.493),
    (95.504, 124.142, 13.335),
    (95.504, 130.492, 3.493),
    (89.584, 130.492, 3.493),
    (89.584, 117.792, 3.493),
    (89.584, 124.142, 13.335),
    (95.504, 77.279, 3.493),
    (95.504, 83.629, 13.335),
    (95.504, 89.979, 3.493),
    (89.584, 89.979, 3.493),
    (89.584, 77.279, 3.493),
    (89.584, 83.629, 13.335),
]))
fillet2.Radius = Q("0.05 in")

doc.recompute()
